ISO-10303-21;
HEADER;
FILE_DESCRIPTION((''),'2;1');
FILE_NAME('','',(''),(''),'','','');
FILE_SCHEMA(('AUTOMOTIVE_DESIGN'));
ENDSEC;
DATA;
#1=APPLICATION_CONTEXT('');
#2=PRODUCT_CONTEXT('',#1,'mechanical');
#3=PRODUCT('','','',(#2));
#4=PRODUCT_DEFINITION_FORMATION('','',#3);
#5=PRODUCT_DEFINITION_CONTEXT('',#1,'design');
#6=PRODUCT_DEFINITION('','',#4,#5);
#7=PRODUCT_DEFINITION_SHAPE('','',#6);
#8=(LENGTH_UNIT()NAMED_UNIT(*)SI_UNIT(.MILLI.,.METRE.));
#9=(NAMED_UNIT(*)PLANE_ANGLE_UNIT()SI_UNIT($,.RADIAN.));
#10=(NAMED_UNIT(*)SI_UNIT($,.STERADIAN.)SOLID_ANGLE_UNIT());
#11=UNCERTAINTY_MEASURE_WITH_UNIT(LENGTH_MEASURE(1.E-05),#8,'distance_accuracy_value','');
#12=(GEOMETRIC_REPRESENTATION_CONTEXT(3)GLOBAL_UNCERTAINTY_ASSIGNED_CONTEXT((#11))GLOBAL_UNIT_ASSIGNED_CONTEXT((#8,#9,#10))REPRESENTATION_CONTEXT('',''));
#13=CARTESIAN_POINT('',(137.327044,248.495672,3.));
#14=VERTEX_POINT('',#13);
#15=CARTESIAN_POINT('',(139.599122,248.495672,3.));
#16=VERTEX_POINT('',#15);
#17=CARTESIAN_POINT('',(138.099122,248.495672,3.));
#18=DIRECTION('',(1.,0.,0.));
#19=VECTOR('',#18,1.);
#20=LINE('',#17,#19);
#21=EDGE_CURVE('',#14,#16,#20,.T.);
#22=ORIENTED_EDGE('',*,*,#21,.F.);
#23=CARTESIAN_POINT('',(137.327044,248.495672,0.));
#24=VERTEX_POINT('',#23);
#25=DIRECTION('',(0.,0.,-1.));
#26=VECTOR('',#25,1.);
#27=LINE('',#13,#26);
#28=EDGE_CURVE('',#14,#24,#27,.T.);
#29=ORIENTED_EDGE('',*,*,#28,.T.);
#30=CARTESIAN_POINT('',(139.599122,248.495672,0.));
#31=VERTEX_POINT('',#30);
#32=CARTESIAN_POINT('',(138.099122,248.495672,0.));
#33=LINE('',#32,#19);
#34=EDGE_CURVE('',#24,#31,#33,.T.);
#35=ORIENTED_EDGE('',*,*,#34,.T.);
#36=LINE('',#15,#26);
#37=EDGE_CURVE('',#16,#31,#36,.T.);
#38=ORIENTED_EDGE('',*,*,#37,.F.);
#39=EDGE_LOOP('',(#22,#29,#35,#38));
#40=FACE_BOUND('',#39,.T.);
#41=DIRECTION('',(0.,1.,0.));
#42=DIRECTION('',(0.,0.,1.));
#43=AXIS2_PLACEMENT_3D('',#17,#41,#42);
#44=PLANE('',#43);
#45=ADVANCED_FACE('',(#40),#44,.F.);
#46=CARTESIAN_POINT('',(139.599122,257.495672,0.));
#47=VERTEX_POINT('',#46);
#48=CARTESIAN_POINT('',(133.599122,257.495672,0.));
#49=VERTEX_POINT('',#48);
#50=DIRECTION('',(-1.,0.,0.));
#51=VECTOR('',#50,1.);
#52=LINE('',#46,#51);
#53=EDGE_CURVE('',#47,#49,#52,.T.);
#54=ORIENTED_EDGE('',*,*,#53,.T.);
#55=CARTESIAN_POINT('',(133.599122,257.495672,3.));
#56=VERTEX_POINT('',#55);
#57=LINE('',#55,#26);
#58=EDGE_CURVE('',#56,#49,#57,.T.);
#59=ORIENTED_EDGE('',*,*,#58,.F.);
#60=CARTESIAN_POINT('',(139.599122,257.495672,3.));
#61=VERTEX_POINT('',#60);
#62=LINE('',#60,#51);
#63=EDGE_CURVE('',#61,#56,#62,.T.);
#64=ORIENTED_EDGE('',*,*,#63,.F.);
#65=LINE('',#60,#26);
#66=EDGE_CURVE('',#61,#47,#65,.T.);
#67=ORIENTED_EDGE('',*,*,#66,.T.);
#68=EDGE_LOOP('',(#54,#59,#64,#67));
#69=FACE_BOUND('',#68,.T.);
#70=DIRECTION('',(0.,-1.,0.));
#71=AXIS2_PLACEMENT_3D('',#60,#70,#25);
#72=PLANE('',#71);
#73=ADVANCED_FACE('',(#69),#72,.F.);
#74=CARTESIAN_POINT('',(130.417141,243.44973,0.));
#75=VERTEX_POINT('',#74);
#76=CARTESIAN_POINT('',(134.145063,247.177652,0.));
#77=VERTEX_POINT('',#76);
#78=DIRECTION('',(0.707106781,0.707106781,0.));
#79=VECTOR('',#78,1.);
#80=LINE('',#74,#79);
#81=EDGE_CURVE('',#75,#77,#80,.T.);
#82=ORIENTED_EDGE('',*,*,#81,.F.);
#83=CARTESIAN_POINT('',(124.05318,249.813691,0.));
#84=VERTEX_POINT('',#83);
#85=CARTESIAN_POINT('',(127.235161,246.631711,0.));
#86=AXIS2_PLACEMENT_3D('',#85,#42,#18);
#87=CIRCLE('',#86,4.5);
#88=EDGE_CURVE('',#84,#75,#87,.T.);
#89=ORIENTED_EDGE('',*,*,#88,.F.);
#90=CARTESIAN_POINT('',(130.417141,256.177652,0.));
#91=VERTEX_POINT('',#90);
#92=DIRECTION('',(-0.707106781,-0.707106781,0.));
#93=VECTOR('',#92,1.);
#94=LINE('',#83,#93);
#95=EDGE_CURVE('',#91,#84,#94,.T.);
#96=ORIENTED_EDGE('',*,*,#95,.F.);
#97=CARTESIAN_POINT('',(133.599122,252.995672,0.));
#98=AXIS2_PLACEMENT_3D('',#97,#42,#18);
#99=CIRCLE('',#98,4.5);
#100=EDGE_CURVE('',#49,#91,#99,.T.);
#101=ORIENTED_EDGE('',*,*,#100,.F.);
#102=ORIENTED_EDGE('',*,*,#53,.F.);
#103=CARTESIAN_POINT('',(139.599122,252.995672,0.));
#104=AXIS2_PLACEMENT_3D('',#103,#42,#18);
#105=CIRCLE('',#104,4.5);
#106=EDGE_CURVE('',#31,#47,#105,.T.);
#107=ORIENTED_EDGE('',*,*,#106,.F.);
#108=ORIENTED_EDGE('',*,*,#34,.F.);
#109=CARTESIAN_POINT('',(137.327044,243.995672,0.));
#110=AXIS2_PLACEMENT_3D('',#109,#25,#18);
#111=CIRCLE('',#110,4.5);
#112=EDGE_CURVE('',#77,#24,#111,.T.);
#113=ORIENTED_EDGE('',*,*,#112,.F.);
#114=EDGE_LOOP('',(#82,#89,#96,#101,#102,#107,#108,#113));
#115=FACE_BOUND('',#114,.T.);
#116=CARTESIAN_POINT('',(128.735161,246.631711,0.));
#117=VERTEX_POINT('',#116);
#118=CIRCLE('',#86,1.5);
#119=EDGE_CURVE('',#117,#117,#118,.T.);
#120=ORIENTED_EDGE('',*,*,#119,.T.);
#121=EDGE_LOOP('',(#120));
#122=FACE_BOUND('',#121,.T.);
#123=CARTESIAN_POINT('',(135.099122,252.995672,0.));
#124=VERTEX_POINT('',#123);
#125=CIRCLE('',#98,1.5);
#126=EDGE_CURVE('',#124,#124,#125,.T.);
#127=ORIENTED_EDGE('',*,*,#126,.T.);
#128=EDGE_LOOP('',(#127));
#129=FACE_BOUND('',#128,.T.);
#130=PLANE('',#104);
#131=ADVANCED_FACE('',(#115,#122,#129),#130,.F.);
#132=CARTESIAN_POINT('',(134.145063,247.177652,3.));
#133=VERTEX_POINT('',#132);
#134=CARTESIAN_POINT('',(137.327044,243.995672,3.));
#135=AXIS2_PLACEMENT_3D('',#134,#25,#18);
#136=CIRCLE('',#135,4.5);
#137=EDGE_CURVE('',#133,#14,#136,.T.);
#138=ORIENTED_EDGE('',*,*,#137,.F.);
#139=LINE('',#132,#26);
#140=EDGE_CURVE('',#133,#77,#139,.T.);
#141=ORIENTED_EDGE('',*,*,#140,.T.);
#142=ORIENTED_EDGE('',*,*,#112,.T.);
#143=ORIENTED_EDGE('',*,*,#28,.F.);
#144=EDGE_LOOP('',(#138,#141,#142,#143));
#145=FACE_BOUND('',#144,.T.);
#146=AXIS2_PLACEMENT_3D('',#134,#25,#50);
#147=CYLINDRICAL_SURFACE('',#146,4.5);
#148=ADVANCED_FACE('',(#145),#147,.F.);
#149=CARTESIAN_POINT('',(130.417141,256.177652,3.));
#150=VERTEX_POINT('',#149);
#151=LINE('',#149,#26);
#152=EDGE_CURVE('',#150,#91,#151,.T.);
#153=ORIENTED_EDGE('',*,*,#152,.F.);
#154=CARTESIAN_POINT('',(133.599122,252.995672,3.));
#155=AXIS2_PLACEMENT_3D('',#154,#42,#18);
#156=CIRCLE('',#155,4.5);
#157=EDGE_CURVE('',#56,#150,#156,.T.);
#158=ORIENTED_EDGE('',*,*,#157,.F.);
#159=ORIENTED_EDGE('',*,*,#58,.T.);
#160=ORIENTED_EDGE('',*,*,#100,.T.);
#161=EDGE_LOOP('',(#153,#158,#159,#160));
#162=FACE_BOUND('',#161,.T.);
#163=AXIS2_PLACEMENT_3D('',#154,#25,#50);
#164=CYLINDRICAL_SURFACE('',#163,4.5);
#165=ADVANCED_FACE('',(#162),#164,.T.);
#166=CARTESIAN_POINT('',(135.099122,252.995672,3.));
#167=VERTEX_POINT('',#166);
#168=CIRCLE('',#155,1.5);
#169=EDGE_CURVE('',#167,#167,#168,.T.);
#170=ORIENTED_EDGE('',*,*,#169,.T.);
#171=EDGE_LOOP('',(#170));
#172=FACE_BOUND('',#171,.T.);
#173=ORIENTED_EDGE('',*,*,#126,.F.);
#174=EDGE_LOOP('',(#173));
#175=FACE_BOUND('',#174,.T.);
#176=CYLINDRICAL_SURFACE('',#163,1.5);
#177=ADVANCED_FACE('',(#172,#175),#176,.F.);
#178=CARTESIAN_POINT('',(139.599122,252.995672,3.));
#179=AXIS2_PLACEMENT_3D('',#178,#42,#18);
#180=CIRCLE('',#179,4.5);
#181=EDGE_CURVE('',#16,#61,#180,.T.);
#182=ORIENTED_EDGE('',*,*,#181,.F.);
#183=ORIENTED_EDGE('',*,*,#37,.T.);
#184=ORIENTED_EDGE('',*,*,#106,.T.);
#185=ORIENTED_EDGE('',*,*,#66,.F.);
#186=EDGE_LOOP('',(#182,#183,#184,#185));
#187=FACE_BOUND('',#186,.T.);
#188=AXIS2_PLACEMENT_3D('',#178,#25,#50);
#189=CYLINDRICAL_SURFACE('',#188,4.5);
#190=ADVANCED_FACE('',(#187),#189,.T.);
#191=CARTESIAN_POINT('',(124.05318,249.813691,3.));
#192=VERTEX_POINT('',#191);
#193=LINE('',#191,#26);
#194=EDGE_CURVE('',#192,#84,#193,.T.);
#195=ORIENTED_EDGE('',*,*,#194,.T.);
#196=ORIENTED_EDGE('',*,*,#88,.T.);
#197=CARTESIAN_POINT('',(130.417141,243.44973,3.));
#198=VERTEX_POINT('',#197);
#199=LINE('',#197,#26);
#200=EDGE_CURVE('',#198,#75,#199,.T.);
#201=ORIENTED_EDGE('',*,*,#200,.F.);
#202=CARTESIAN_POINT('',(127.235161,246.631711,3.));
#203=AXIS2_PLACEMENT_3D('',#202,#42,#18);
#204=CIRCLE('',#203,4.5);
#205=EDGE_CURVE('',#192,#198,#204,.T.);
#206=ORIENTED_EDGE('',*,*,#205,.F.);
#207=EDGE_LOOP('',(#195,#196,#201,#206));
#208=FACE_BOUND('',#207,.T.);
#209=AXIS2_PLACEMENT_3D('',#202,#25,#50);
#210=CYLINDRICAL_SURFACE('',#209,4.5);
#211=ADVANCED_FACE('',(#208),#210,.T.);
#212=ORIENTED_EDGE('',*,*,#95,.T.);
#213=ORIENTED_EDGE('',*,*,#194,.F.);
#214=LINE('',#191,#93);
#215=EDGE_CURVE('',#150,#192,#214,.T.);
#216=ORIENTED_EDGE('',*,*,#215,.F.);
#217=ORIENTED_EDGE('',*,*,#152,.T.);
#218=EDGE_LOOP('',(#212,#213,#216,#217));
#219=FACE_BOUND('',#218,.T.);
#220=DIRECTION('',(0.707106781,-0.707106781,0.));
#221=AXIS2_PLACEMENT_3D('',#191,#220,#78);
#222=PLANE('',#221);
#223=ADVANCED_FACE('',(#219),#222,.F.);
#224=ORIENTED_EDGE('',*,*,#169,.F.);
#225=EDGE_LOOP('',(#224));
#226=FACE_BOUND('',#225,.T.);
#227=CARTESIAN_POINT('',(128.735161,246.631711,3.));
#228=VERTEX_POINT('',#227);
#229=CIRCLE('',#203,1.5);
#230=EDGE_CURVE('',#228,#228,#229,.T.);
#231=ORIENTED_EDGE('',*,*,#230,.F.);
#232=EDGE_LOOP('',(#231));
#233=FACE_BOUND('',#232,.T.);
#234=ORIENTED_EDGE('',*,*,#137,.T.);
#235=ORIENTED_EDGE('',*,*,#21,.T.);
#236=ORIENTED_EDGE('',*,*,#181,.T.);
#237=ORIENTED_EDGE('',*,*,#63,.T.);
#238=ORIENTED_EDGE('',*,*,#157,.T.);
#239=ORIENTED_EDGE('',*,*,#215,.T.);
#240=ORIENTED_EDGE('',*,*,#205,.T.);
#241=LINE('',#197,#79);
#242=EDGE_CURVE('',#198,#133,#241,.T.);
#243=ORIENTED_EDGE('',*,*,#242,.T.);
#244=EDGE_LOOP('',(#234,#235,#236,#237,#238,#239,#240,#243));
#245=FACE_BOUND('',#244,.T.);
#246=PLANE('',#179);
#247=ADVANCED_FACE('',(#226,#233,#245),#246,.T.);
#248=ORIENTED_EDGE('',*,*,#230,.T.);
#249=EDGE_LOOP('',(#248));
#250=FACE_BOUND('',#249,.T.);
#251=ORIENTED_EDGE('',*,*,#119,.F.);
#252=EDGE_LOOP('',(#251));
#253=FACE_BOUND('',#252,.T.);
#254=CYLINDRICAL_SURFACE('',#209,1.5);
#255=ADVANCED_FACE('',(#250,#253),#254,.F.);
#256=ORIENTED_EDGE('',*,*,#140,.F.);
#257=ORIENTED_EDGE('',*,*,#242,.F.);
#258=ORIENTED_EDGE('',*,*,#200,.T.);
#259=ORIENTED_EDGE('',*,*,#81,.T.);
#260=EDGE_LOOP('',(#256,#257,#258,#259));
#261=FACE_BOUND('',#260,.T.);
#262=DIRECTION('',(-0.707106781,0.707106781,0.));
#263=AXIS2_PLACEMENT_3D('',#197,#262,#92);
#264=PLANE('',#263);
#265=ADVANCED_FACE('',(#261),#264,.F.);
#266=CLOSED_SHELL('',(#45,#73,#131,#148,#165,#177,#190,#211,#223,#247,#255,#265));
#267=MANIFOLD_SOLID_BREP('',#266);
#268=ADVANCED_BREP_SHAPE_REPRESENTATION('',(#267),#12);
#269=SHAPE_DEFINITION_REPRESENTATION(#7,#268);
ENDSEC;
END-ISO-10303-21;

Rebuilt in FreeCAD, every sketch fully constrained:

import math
import FreeCAD as App
import Part
import Sketcher

V = App.Vector
Q = App.Units.Quantity

doc = App.newDocument("Part")
body = doc.addObject("PartDesign::Body", "Body")

# Sketch on XY plane
sketch1 = body.newObject("Sketcher::SketchObject", "Sketch")
sketch1.AttachmentSupport = (doc.getObject("XY_Plane"), [""])
sketch1.MapMode = "FlatFace"
sketch1.addGeometry(Part.LineSegment(V(139.6, 257.5, 0), V(133.6, 257.5, 0)), False)
sketch1.addGeometry(Part.ArcOfCircle(Part.Circle(V(133.6, 253, 0), V(0, 0, 1), 4.5), math.radians(90), math.radians(135)), False)
sketch1.addGeometry(Part.LineSegment(V(130.4, 256.2, 0), V(124.1, 249.8, 0)), False)
sketch1.addGeometry(Part.ArcOfCircle(Part.Circle(V(127.2, 246.6, 0), V(0, 0, 1), 4.5), math.radians(135), math.radians(315)), False)
sketch1.addGeometry(Part.LineSegment(V(130.4, 243.4, 0), V(134.1, 247.2, 0)), False)
sketch1.addGeometry(Part.ArcOfCircle(Part.Circle(V(137.3, 244, 0), V(0, 0, 1), 4.5), math.radians(90), math.radians(135)), False)
sketch1.addGeometry(Part.LineSegment(V(137.3, 248.5, 0), V(139.6, 248.5, 0)), False)
sketch1.addGeometry(Part.ArcOfCircle(Part.Circle(V(139.6, 253, 0), V(0, 0, 1), 4.5), math.radians(-90), math.radians(90)), False)
sketch1.addGeometry(Part.Circle(V(127.2, 246.6, 0), V(0, 0, 1), 1.5), False)
sketch1.addGeometry(Part.Circle(V(133.6, 253, 0), V(0, 0, 1), 1.5), False)
sketch1.addConstraint(Sketcher.Constraint("Tangent", 0, 2, 1, 1))
sketch1.addConstraint(Sketcher.Constraint("Tangent", 1, 2, 2, 1))
sketch1.addConstraint(Sketcher.Constraint("Tangent", 2, 2, 3, 1))
sketch1.addConstraint(Sketcher.Constraint("Tangent", 3, 2, 4, 1))
sketch1.addConstraint(Sketcher.Constraint("Tangent", 4, 2, 5, 2))
sketch1.addConstraint(Sketcher.Constraint("Tangent", 5, 1, 6, 1))
sketch1.addConstraint(Sketcher.Constraint("Tangent", 6, 2, 7, 1))
sketch1.addConstraint(Sketcher.Constraint("Tangent", 7, 2, 0, 1))
sketch1.addConstraint(Sketcher.Constraint("Horizontal", 0))
sketch1.addConstraint(Sketcher.Constraint("Horizontal", 6))
sketch1.addConstraint(Sketcher.Constraint("Coincident", 8, 3, 3, 3))
sketch1.addConstraint(Sketcher.Constraint("Coincident", 9, 3, 1, 3))
sketch1.addConstraint(Sketcher.Constraint("Equal", 1, 3))
sketch1.addConstraint(Sketcher.Constraint("Equal", 3, 5))
sketch1.addConstraint(Sketcher.Constraint("Equal", 5, 7))
sketch1.addConstraint(Sketcher.Constraint("Equal", 8, 9))
sketch1.addConstraint(Sketcher.Constraint("Parallel", 2, 4))
sketch1.addConstraint(Sketcher.Constraint("Vertical", 1, 2, 3, 2))
sketch1.addConstraint(Sketcher.Constraint("Diameter", 8, Q("3 mm")))
sketch1.addConstraint(Sketcher.Constraint("Radius", 1, Q("4.5 mm")))
sketch1.addConstraint(Sketcher.Constraint("DistanceX", 0, 2, 0, 1, Q("6 mm")))
sketch1.addConstraint(Sketcher.Constraint("Angle", 2, Q("-135 deg")))
sketch1.addConstraint(Sketcher.Constraint("DistanceX", -1, 1, 1, 3, Q("133.599122 mm")))
sketch1.addConstraint(Sketcher.Constraint("DistanceY", -1, 1, 1, 3, Q("252.995672 mm")))
pad1 = body.newObject("PartDesign::Pad", "Pad")
pad1.Profile = sketch1
pad1.Length = 3

doc.recompute()
